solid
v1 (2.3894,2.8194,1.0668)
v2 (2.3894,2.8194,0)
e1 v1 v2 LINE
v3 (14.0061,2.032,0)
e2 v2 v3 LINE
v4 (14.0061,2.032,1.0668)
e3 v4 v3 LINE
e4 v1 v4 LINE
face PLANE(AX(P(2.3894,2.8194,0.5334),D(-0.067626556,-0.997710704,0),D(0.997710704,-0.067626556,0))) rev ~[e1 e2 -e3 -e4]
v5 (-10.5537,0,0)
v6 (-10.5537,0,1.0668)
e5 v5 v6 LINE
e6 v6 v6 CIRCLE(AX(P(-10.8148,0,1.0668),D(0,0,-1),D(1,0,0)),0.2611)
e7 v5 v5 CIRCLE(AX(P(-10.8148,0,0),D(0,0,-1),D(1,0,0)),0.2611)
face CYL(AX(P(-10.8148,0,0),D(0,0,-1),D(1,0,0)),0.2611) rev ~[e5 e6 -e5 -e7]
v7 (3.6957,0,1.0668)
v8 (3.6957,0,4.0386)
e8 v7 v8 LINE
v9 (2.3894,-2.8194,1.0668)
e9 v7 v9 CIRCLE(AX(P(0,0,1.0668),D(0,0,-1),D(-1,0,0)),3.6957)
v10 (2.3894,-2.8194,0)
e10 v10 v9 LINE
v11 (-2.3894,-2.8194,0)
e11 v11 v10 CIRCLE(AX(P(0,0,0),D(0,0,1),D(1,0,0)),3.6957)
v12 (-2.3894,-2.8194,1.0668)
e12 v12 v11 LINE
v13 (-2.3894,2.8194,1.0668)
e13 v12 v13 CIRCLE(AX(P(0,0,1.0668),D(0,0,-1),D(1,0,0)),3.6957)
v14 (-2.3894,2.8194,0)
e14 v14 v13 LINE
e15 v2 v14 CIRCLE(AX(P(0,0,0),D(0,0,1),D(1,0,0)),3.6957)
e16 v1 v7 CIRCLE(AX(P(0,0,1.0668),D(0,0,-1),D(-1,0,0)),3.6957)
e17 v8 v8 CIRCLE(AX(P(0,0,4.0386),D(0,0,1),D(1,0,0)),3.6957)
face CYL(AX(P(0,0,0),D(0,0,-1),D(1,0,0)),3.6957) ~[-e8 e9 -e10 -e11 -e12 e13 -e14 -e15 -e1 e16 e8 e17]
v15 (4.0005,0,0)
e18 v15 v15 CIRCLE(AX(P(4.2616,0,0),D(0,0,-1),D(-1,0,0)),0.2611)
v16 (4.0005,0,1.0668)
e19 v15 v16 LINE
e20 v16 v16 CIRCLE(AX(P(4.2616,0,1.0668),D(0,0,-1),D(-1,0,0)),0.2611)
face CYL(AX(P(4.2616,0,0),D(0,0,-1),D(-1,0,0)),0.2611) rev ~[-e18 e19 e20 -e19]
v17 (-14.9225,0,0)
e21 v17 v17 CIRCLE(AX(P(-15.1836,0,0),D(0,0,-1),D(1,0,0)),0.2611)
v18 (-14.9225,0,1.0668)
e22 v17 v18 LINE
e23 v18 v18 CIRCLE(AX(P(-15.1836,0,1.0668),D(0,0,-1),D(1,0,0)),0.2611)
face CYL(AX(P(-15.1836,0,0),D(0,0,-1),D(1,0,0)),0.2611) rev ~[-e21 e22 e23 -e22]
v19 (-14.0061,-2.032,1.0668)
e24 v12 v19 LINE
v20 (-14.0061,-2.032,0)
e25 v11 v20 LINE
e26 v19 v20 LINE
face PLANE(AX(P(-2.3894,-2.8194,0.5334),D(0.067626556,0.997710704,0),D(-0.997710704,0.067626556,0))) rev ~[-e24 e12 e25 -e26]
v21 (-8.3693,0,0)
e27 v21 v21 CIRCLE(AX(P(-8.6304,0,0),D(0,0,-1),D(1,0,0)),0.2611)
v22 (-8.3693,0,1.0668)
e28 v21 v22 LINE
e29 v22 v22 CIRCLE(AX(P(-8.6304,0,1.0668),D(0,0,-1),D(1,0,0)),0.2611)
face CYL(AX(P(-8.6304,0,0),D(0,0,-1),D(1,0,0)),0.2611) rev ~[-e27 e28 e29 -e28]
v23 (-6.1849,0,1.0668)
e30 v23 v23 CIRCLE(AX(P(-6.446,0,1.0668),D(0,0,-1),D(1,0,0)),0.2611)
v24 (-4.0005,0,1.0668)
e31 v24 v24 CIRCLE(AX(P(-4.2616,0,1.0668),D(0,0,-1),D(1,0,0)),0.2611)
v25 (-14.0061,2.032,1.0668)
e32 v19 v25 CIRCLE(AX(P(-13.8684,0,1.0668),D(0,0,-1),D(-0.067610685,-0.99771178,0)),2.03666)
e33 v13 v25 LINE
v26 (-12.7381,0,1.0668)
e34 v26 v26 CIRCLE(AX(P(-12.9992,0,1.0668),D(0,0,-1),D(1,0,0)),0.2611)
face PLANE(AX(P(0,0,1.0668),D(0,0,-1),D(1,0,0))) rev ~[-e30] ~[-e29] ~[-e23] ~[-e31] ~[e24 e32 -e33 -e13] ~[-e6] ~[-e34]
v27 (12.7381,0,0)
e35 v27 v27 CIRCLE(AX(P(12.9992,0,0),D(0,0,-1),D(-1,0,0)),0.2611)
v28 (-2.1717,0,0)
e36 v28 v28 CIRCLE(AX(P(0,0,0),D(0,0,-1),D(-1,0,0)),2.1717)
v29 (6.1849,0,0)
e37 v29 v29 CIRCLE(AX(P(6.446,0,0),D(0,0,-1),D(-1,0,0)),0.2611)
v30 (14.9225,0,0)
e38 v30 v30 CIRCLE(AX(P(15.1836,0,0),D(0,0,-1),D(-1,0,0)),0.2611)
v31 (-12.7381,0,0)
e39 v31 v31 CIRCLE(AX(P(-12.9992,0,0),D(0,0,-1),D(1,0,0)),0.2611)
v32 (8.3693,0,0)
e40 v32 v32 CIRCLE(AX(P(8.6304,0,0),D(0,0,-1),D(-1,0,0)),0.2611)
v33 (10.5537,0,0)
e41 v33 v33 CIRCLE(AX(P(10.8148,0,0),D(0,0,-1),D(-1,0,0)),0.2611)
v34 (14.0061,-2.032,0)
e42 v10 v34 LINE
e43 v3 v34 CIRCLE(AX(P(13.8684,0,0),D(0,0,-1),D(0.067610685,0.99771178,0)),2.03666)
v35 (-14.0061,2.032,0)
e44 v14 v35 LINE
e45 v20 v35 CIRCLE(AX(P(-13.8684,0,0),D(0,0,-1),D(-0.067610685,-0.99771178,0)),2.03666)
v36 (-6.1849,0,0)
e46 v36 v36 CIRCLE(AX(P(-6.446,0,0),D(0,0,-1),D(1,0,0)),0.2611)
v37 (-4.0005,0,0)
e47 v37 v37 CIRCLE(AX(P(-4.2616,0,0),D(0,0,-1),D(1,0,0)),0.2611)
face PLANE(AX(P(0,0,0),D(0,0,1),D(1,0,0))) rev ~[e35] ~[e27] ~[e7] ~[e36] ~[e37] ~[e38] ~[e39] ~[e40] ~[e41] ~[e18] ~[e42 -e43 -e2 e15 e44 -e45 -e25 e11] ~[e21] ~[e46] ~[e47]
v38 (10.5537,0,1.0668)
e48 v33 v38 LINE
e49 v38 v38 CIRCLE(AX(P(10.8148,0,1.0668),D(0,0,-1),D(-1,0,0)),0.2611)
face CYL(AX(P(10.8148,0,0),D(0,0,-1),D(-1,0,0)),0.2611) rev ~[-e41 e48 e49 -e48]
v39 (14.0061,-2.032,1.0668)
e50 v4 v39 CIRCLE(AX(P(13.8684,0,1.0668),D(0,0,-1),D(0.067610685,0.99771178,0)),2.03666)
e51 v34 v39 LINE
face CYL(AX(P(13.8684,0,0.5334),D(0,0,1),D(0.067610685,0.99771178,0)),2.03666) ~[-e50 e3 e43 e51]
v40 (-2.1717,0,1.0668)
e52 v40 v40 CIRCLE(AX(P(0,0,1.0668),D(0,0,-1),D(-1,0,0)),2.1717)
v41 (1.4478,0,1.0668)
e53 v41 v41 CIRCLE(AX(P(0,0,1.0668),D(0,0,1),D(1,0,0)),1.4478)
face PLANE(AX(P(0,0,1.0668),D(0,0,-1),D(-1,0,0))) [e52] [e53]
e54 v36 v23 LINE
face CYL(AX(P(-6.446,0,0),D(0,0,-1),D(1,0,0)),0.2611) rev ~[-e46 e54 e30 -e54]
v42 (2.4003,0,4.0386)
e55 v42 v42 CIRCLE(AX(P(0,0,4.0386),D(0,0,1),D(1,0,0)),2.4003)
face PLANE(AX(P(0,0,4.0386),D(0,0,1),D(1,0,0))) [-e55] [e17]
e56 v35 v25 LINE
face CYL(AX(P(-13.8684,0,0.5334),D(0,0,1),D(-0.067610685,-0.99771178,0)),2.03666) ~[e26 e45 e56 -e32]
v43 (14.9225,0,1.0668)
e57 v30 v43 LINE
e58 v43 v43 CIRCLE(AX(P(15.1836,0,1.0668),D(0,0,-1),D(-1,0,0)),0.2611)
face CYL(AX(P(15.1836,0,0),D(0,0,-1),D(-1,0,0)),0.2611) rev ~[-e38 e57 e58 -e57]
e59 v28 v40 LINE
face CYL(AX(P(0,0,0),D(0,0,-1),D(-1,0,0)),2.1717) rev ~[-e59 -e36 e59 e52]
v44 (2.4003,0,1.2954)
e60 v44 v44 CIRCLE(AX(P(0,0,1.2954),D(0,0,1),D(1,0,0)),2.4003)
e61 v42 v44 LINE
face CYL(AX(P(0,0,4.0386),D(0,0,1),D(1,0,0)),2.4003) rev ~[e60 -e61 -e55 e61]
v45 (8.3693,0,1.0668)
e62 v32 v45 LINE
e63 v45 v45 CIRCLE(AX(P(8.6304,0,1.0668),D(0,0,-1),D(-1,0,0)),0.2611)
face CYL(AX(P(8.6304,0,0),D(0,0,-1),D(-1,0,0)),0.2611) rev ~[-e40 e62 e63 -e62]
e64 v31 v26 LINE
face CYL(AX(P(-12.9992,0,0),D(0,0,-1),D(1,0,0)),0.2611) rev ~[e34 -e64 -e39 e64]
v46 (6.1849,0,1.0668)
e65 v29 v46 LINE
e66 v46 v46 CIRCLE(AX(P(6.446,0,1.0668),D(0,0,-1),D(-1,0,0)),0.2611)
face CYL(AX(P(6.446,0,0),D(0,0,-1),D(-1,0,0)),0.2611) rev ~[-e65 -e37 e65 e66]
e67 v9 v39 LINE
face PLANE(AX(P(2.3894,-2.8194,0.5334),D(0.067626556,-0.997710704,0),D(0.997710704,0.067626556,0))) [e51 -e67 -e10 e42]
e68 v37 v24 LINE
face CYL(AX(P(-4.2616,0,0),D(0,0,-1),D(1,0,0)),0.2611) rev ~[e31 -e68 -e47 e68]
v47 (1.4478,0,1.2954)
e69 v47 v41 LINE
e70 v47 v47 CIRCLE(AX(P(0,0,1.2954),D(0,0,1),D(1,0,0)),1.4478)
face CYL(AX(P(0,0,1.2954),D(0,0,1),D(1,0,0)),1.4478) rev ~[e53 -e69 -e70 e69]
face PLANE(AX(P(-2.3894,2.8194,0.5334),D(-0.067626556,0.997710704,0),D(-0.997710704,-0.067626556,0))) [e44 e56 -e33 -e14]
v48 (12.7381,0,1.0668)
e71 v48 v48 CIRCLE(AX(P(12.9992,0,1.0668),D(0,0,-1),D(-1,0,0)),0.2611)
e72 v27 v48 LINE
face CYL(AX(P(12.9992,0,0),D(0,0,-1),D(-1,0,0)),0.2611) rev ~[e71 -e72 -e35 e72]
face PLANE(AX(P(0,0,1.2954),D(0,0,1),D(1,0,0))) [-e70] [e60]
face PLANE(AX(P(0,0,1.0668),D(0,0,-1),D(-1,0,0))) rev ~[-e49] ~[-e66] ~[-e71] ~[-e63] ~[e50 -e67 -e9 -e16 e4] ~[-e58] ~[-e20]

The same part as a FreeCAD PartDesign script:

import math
import FreeCAD as App
import Part
import Sketcher
Q = App.Units.Quantity

doc = App.newDocument("Part")
body = doc.addObject("PartDesign::Body", "Body")

sketch1 = body.newObject("Sketcher::SketchObject", "Sketch")
sketch1.AttachmentSupport = (doc.getObject("XY_Plane"), [""])
sketch1.MapMode = "FlatFace"
sketch1.addGeometry(Part.Circle(App.Vector(0, 0, 0), App.Vector(0, 0, 1), 3.7), False)
sketch1.addConstraint([
    Sketcher.Constraint("Coincident", 0, 3, -1, 1),
    Sketcher.Constraint("Diameter", 0, Q("0.291 in")),
])
pad1 = body.newObject("PartDesign::Pad", "Pad")
pad1.Profile = sketch1
pad1.Length = Q("0.159 in")

sketch2 = body.newObject("Sketcher::SketchObject", "Sketch001")
sketch2.AttachmentSupport = (doc.getObject("XY_Plane"), [""])
sketch2.MapMode = "FlatFace"
sketch2.AttachmentOffset = App.Placement(App.Vector(0, 0, 0.159 * 25.4), App.Rotation())
sketch2.addGeometry(Part.Circle(App.Vector(0, 0, 0), App.Vector(0, 0, 1), 2.4), False)
sketch2.addConstraint([
    Sketcher.Constraint("Coincident", 0, 3, -1, 1),
    Sketcher.Constraint("Diameter", 0, Q("0.189 in")),
])
pocket1 = body.newObject("PartDesign::Pocket", "Pocket")
pocket1.Profile = sketch2
pocket1.Length = Q("0.108 in")

sketch3 = body.newObject("Sketcher::SketchObject", "Sketch002")
sketch3.AttachmentSupport = (doc.getObject("XY_Plane"), [""])
sketch3.MapMode = "FlatFace"
sketch3.addGeometry(Part.Circle(App.Vector(0, 0, 0), App.Vector(0, 0, 1), 2.2), False)
sketch3.addConstraint([
    Sketcher.Constraint("Coincident", 0, 3, -1, 1),
    Sketcher.Constraint("Diameter", 0, Q("0.171 in")),
])
pocket2 = body.newObject("PartDesign::Pocket", "Pocket001")
pocket2.Profile = sketch3
pocket2.Length = Q("0.042 in")
pocket2.Reversed = True

sketch4 = body.newObject("Sketcher::SketchObject", "Sketch003")
sketch4.AttachmentSupport = (doc.getObject("XY_Plane"), [""])
sketch4.MapMode = "FlatFace"
sketch4.AttachmentOffset = App.Placement(App.Vector(0, 0, 0.051 * 25.4), App.Rotation())
sketch4.addGeometry(Part.Circle(App.Vector(0, 0, 0), App.Vector(0, 0, 1), 1.4), False)
sketch4.addConstraint([
    Sketcher.Constraint("Coincident", 0, 3, -1, 1),
    Sketcher.Constraint("Diameter", 0, Q("0.114 in")),
])
pocket3 = body.newObject("PartDesign::Pocket", "Pocket002")
pocket3.Profile = sketch4
pocket3.Type = "ThroughAll"

sketch5 = body.newObject("Sketcher::SketchObject", "Sketch004")
sketch5.AttachmentSupport = (doc.getObject("XY_Plane"), [""])
sketch5.MapMode = "FlatFace"
sketch5.AttachmentOffset = App.Placement(App.Vector(0, 0, 0.021 * 25.4), App.Rotation())
sketch5.addGeometry([
    Part.ArcOfCircle(Part.Circle(App.Vector(0, 0, 0), App.Vector(0, 0, 1), 3.7), math.radians(-50), math.radians(50)),
    Part.LineSegment(App.Vector(2.4, 2.8, 0), App.Vector(14, 2, 0)),
    Part.ArcOfCircle(Part.Circle(App.Vector(13.9, 0, 0), App.Vector(0, 0, 1), 2), math.radians(-86), math.radians(86)),
    Part.LineSegment(App.Vector(14, -2, 0), App.Vector(2.4, -2.8, 0)),
], False)
sketch5.addConstraint([
    Sketcher.Constraint("Coincident", 0, 2, 1, 1),
    Sketcher.Constraint("Tangent", 1, 2, 2, 2),
    Sketcher.Constraint("Tangent", 2, 1, 3, 1),
    Sketcher.Constraint("Coincident", 3, 2, 0, 1),
    Sketcher.Constraint("Coincident", 0, 3, -1, 1),
    Sketcher.Constraint("Symmetric", 1, 2, 2, 1, -1),
    Sketcher.Constraint("DistanceY", 2, 1, 1, 2, Q("0.16 in")),
    Sketcher.Constraint("DistanceX", -1, 1, 2, 3, Q("0.546 in")),
    Sketcher.Constraint("DistanceY", 3, 2, 0, 2, Q("0.222 in")),
    Sketcher.Constraint("Radius", 0, Q("0.1455 in")),
])
pad2 = body.newObject("PartDesign::Pad", "Pad001")
pad2.Profile = sketch5
pad2.Length = Q("0.042 in")
pad2.Midplane = True

sketch6 = body.newObject("Sketcher::SketchObject", "Sketch005")
sketch6.AttachmentSupport = (doc.getObject("XY_Plane"), [""])
sketch6.MapMode = "FlatFace"
sketch6.addGeometry([
    Part.Circle(App.Vector(15.18, 0, 0), App.Vector(0, 0, 1), 0.26),
    Part.Circle(App.Vector(13, 0, 0), App.Vector(0, 0, 1), 0.26),
    Part.Circle(App.Vector(10.81, 0, 0), App.Vector(0, 0, 1), 0.26),
    Part.Circle(App.Vector(8.63, 0, 0), App.Vector(0, 0, 1), 0.26),
    Part.Circle(App.Vector(6.45, 0, 0), App.Vector(0, 0, 1), 0.26),
    Part.Circle(App.Vector(4.26, 0, 0), App.Vector(0, 0, 1), 0.26),
], False)
sketch6.addConstraint([
    Sketcher.Constraint("Equal", 0, 1),
    Sketcher.Constraint("Equal", 1, 2),
    Sketcher.Constraint("Equal", 2, 3),
    Sketcher.Constraint("Equal", 3, 4),
    Sketcher.Constraint("Equal", 4, 5),
    Sketcher.Constraint("PointOnObject", 0, 3, -1),
    Sketcher.Constraint("PointOnObject", 1, 3, -1),
    Sketcher.Constraint("PointOnObject", 2, 3, -1),
    Sketcher.Constraint("PointOnObject", 3, 3, -1),
    Sketcher.Constraint("PointOnObject", 4, 3, -1),
    Sketcher.Constraint("PointOnObject", 5, 3, -1),
    Sketcher.Constraint("DistanceX", 1, 3, 0, 3, Q("0.086 in")),
    Sketcher.Constraint("DistanceX", 2, 3, 1, 3, Q("0.086 in")),
    Sketcher.Constraint("DistanceX", 3, 3, 2, 3, Q("0.086 in")),
    Sketcher.Constraint("DistanceX", 4, 3, 3, 3, Q("0.086 in")),
    Sketcher.Constraint("DistanceX", 5, 3, 4, 3, Q("0.086 in")),
    Sketcher.Constraint("Diameter", 0, 0.5222),
    Sketcher.Constraint("DistanceX", -1, 1, 0, 3, 15.1836),
])
pocket4 = body.newObject("PartDesign::Pocket", "Pocket003")
pocket4.Profile = sketch6
pocket4.Type = "ThroughAll"
pocket4.Reversed = True
doc.recompute()

polarpattern = body.newObject("PartDesign::PolarPattern", "PolarPattern")
polarpattern.Originals = [pad2, pocket4]
polarpattern.Axis = (doc.getObject("Z_Axis"), [""])
polarpattern.Angle = 360
polarpattern.Occurrences = 2
body.Tip = polarpattern

doc.recompute()
